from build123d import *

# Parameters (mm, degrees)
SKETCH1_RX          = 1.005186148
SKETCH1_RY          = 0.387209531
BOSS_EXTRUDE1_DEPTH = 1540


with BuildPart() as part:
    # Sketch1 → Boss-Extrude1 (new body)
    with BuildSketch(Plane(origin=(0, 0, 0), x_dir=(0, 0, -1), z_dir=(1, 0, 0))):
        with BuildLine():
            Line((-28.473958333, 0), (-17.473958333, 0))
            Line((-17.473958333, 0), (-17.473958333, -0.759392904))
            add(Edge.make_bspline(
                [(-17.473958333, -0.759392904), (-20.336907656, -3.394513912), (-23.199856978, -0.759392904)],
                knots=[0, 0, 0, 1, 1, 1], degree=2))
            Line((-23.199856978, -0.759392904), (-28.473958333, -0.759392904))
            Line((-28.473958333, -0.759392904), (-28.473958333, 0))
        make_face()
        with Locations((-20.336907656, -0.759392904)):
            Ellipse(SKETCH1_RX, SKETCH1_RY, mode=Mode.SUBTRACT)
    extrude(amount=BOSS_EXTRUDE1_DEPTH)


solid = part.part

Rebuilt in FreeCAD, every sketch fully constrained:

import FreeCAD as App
import Part
import Sketcher
from FreeCAD import Vector

doc = App.newDocument("Part")
body = doc.addObject("PartDesign::Body", "Body")

# Sketch on YZ plane
sketch1 = body.newObject("Sketcher::SketchObject", "Sketch")
sketch1.AttachmentSupport = (doc.getObject("YZ_Plane"), [""])
sketch1.MapMode = "FlatFace"
sketch1.addGeometry([
    Part.LineSegment(Vector(0, 17.473958, 0), Vector(0, 28.473958, 0)),  # 0
    Part.LineSegment(Vector(0, 28.473958, 0), Vector(-0.759393, 28.473958, 0)),  # 1
    Part.LineSegment(Vector(-0.759393, 28.473958, 0), Vector(-0.759393, 23.199857, 0)),  # 2
    Part.BSplineCurve([Vector(-0.759393, 17.473958, 0), Vector(-3.394514, 20.336908, 0), Vector(-0.759393, 23.199857, 0)], [3, 3], [0, 1], False, 2, [1, 1, 1], False),  # 3
    Part.LineSegment(Vector(-0.759393, 17.473958, 0), Vector(0, 17.473958, 0)),  # 4
    Part.Ellipse(Vector(-0.759393, 19.331722, 0), Vector(-0.372183, 20.336908, 0), Vector(-0.759393, 20.336908, 0)),  # 5
], False)
sketch1.addConstraint([
    Sketcher.Constraint("Block", 3),
    Sketcher.Constraint("Block", 5),
    Sketcher.Constraint("Coincident", 0, 2, 1, 1),
    Sketcher.Constraint("Coincident", 1, 2, 2, 1),
    Sketcher.Constraint("Coincident", 2, 2, 3, 2),
    Sketcher.Constraint("Coincident", 3, 1, 4, 1),
    Sketcher.Constraint("Coincident", 4, 2, 0, 1),
    Sketcher.Constraint("Vertical", 0),
    Sketcher.Constraint("Horizontal", 1),
    Sketcher.Constraint("Vertical", 2),
    Sketcher.Constraint("Horizontal", 4),
    Sketcher.Constraint("PointOnObject", 0, 2, -2),
    Sketcher.Constraint("DistanceY", 0, 1, 0, 2, 11.0),
])
pad1 = body.newObject("PartDesign::Pad", "Pad")
pad1.Profile = sketch1
pad1.Length = 1540

doc.recompute()
